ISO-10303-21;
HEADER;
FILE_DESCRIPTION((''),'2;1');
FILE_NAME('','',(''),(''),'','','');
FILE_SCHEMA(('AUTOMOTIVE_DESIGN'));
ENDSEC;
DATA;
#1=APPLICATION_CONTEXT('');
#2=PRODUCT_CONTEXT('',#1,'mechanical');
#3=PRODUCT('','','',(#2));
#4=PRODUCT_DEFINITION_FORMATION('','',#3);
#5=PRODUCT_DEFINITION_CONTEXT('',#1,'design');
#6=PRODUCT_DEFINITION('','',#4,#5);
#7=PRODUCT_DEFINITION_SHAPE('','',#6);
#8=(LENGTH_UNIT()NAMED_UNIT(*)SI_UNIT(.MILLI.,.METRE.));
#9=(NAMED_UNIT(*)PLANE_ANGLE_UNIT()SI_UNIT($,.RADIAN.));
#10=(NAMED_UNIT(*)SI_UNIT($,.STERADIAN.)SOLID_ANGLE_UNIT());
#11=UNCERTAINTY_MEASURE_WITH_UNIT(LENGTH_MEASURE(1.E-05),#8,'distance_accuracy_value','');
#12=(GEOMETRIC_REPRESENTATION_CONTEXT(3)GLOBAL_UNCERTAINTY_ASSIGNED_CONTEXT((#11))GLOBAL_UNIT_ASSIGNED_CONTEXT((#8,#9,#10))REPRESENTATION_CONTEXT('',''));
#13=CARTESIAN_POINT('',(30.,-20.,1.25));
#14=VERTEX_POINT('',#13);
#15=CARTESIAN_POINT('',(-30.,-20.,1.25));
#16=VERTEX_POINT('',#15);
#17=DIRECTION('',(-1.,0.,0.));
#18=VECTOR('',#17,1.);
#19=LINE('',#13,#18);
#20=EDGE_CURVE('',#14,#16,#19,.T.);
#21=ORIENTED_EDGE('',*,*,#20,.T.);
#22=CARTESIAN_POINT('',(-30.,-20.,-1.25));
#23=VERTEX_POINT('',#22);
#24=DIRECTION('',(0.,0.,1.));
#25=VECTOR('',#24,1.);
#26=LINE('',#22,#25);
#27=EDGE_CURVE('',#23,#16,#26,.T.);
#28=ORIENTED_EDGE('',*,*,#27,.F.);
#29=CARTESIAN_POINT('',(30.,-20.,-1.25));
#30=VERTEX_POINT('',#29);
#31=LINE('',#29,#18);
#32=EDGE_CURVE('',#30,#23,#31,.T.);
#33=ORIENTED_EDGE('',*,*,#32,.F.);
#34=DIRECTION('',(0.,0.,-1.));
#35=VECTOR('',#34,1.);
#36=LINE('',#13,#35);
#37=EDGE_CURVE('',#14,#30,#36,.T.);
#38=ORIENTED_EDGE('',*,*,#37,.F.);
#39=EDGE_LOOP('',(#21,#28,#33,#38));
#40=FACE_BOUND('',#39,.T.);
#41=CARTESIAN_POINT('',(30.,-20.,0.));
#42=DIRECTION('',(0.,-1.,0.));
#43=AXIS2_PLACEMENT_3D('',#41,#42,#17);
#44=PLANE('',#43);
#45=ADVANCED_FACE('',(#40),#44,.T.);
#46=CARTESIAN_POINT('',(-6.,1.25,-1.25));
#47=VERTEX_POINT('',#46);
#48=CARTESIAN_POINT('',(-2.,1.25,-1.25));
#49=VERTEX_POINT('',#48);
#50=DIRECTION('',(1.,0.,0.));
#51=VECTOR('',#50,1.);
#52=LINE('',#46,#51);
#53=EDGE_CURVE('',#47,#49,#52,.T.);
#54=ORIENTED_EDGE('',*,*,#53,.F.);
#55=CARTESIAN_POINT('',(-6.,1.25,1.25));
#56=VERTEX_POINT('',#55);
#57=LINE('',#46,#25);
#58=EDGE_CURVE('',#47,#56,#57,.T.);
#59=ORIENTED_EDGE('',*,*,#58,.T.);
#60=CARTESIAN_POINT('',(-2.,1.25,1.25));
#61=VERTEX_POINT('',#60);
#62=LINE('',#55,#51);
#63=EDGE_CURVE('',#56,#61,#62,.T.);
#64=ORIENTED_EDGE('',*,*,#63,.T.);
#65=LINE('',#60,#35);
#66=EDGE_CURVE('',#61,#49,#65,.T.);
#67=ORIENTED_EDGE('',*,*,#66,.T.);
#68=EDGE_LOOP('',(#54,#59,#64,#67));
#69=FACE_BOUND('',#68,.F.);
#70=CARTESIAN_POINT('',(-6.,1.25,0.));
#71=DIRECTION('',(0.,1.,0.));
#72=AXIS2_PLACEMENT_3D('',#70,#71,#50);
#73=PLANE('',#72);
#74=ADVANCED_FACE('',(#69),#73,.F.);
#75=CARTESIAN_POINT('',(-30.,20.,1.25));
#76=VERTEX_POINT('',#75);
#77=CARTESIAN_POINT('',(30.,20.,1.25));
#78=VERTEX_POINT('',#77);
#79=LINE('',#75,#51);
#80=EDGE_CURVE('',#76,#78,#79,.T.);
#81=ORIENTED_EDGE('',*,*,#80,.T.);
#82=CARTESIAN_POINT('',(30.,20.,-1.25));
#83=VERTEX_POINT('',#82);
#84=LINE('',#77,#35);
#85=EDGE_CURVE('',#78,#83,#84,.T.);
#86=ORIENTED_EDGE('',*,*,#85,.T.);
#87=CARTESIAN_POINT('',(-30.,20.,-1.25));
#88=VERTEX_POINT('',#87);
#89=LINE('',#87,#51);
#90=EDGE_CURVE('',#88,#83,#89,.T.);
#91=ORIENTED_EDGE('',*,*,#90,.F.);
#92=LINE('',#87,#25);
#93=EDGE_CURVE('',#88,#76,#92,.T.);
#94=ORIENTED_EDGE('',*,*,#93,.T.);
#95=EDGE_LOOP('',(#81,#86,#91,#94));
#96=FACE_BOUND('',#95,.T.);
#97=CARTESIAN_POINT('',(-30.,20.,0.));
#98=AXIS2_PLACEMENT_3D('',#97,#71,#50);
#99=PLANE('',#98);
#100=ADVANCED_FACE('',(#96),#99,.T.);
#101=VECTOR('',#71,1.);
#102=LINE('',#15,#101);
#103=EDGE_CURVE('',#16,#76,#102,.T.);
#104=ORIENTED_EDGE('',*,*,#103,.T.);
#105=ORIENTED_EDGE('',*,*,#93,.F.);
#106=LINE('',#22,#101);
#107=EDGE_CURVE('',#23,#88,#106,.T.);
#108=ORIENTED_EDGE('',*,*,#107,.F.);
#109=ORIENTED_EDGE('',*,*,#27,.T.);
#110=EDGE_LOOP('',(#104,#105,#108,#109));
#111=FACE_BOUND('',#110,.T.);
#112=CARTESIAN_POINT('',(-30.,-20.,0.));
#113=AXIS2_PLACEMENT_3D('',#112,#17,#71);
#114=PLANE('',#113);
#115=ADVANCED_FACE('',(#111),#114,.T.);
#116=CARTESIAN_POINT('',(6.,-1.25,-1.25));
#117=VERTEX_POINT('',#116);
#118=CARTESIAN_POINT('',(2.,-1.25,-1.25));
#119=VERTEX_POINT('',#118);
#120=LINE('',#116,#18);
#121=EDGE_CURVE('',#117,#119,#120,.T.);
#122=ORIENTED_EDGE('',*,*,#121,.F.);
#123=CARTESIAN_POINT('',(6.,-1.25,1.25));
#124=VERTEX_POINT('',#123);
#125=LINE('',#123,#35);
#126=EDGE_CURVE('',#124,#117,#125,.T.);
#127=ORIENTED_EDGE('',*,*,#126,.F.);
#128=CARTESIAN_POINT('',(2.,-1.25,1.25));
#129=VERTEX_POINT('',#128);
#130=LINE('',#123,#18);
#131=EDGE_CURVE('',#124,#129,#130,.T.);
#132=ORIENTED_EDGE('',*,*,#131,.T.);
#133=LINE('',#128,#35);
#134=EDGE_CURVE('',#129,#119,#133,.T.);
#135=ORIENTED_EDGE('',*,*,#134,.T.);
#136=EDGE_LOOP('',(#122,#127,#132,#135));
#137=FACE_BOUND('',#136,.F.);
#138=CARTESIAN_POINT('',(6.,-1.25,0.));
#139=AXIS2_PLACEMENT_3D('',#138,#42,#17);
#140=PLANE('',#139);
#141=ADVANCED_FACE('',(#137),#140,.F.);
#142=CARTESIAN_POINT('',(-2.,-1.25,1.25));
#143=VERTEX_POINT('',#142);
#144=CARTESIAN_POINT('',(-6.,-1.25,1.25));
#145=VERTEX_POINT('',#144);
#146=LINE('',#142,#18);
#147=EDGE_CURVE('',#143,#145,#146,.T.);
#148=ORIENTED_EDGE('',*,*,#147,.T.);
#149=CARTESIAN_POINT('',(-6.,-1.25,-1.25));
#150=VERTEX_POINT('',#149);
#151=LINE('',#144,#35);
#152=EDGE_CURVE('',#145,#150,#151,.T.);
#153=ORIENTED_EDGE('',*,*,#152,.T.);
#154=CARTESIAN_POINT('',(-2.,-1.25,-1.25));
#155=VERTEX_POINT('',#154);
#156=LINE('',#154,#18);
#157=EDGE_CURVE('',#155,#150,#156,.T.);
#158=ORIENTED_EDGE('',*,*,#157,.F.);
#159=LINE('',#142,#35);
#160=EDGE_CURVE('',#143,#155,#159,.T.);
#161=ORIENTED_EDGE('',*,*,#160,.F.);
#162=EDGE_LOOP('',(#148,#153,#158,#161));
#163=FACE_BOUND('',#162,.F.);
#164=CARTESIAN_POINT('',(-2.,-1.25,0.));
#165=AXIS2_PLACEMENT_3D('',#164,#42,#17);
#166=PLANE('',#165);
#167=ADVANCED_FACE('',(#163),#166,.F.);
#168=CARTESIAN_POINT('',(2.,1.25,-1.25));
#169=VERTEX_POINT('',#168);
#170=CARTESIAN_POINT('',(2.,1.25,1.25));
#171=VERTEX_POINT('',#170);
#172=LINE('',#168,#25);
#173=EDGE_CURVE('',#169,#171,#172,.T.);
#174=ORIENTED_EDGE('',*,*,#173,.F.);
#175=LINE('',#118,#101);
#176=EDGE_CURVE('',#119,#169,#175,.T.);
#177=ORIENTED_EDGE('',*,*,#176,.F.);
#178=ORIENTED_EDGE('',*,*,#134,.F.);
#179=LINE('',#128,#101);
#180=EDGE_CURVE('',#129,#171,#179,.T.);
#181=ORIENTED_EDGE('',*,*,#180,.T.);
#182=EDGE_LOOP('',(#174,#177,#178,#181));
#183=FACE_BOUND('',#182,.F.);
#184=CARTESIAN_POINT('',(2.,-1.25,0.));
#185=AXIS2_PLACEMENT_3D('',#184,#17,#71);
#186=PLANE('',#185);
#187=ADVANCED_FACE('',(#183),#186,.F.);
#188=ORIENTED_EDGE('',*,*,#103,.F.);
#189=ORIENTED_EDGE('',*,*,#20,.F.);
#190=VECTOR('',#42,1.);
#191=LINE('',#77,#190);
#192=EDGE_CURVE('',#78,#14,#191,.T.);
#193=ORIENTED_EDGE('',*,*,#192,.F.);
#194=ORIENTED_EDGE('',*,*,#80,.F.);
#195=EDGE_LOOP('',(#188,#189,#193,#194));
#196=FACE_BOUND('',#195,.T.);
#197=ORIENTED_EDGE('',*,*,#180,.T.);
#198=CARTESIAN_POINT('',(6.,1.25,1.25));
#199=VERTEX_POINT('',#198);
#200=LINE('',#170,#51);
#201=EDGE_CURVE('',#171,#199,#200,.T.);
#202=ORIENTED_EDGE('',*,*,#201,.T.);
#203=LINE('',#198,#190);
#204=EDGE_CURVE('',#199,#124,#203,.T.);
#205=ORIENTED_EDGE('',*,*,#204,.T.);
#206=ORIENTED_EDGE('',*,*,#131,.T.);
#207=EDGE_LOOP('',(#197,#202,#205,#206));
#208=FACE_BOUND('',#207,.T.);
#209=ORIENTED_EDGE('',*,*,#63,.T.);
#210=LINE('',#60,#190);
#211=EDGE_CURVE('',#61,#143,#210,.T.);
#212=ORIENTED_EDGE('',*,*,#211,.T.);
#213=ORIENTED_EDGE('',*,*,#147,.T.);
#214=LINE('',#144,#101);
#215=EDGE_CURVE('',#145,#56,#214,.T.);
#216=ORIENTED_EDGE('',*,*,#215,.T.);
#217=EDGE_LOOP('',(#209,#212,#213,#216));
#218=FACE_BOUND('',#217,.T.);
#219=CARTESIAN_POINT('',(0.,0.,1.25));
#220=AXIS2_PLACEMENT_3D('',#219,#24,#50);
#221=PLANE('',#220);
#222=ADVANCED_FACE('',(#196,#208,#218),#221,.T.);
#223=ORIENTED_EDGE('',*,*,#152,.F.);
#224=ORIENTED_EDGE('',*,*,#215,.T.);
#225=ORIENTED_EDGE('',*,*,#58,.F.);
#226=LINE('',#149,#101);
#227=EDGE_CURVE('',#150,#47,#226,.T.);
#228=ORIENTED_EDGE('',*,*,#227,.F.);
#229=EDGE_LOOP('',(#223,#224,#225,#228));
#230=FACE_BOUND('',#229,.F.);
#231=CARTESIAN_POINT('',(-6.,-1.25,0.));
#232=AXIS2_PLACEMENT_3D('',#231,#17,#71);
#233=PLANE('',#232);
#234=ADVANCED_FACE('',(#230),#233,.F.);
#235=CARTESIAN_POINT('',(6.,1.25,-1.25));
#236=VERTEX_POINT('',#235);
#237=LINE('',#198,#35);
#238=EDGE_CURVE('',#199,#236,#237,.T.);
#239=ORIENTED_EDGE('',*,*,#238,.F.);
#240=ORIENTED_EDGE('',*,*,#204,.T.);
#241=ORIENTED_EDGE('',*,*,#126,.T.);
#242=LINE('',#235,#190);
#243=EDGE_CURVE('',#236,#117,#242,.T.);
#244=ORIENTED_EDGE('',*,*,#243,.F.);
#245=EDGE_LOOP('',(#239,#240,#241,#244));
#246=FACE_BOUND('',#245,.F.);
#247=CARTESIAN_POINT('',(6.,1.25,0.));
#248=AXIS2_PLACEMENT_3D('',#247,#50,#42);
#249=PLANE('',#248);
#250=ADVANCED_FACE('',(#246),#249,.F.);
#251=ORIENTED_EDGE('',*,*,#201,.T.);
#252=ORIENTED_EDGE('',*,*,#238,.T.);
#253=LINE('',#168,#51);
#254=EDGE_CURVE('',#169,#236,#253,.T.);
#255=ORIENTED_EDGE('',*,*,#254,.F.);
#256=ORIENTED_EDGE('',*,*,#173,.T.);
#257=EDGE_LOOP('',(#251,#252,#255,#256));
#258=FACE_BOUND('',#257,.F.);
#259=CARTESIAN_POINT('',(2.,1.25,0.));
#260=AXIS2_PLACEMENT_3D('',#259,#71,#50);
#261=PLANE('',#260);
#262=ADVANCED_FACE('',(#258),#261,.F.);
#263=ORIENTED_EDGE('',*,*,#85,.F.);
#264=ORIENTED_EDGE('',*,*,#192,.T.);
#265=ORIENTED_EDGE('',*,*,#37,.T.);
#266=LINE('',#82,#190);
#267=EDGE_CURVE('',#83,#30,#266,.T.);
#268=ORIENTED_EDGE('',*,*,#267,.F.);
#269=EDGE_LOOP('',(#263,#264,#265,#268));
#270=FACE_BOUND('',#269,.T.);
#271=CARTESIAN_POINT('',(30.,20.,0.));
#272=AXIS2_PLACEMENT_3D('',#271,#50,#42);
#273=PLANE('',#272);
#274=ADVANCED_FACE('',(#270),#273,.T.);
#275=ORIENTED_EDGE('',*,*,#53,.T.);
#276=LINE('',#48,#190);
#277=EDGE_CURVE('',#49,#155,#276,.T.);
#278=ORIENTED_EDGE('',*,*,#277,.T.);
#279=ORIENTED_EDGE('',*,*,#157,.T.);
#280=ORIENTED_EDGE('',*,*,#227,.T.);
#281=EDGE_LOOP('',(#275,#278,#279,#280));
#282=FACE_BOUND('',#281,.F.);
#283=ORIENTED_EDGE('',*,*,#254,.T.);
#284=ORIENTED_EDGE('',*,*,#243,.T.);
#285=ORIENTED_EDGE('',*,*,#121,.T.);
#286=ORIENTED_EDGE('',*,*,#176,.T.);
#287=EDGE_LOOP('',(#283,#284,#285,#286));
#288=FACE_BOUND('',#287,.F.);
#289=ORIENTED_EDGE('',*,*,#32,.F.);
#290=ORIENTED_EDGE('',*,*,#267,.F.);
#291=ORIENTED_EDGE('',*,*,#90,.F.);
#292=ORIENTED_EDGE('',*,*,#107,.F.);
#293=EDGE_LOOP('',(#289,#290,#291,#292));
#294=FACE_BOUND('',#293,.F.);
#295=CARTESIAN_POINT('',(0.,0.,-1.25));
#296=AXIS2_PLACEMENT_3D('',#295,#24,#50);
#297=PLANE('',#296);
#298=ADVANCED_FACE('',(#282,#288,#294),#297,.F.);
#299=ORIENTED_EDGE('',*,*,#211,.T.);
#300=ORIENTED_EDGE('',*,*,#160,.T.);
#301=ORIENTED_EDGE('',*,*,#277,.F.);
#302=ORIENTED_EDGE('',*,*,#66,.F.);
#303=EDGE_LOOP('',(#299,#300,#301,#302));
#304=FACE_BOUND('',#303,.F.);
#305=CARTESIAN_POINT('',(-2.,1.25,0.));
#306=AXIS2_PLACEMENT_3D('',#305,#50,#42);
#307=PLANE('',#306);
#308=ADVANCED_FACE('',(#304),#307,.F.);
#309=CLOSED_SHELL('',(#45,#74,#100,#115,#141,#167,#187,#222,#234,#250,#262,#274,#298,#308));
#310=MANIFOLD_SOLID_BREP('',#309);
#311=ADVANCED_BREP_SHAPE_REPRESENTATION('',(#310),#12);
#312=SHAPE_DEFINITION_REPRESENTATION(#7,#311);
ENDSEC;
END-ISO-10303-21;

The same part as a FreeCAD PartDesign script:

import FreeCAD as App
import Part
import Sketcher

V = App.Vector

doc = App.newDocument("Part")
params = doc.addObject("Spreadsheet::Sheet", "Params")
for row, (alias, value) in enumerate([
    ("sketch1_width", "60 mm"),
    ("sketch1_width2", "4 mm"),
    ("sketch1_height", "40 mm"),
    ("sketch1_height2", "2.5 mm"),
    ("pad1_length", "2.5 mm"),
], start=1):
    params.set(f"A{row}", alias)
    params.set(f"B{row}", "=" + value)
    params.setAlias(f"B{row}", alias)

body = doc.addObject("PartDesign::Body", "Body")

sketch1 = body.newObject("Sketcher::SketchObject", "Sketch")
sketch1.AttachmentSupport = (doc.getObject("XY_Plane"), [""])
sketch1.MapMode = "FlatFace"
sketch1.addGeometry([
    Part.LineSegment(V(30, 20, 0), V(-30, 20, 0)),
    Part.LineSegment(V(-30, 20, 0), V(-30, -20, 0)),
    Part.LineSegment(V(-30, -20, 0), V(30, -20, 0)),
    Part.LineSegment(V(30, -20, 0), V(30, 20, 0)),
    Part.LineSegment(V(-6, -1.2, 0), V(-6, 1.2, 0)),
    Part.LineSegment(V(-6, 1.2, 0), V(-2, 1.2, 0)),
    Part.LineSegment(V(-2, 1.2, 0), V(-2, -1.2, 0)),
    Part.LineSegment(V(-2, -1.2, 0), V(-6, -1.2, 0)),
    Part.LineSegment(V(2, -1.2, 0), V(2, 1.2, 0)),
    Part.LineSegment(V(2, 1.2, 0), V(6, 1.2, 0)),
    Part.LineSegment(V(6, 1.2, 0), V(6, -1.2, 0)),
    Part.LineSegment(V(6, -1.2, 0), V(2, -1.2, 0)),
], False)
sketch1.addConstraint([
    Sketcher.Constraint("Coincident", 0, 2, 1, 1),
    Sketcher.Constraint("Coincident", 1, 2, 2, 1),
    Sketcher.Constraint("Coincident", 2, 2, 3, 1),
    Sketcher.Constraint("Coincident", 3, 2, 0, 1),
    Sketcher.Constraint("Coincident", 4, 2, 5, 1),
    Sketcher.Constraint("Coincident", 5, 2, 6, 1),
    Sketcher.Constraint("Coincident", 6, 2, 7, 1),
    Sketcher.Constraint("Coincident", 7, 2, 4, 1),
    Sketcher.Constraint("Coincident", 8, 2, 9, 1),
    Sketcher.Constraint("Coincident", 9, 2, 10, 1),
    Sketcher.Constraint("Coincident", 10, 2, 11, 1),
    Sketcher.Constraint("Coincident", 11, 2, 8, 1),
    Sketcher.Constraint("Horizontal", 0),
    Sketcher.Constraint("Vertical", 1),
    Sketcher.Constraint("Horizontal", 2),
    Sketcher.Constraint("Vertical", 3),
    Sketcher.Constraint("Vertical", 4),
    Sketcher.Constraint("Horizontal", 5),
    Sketcher.Constraint("Vertical", 6),
    Sketcher.Constraint("Horizontal", 7),
    Sketcher.Constraint("Vertical", 8),
    Sketcher.Constraint("Horizontal", 9),
    Sketcher.Constraint("Vertical", 10),
    Sketcher.Constraint("Horizontal", 11),
    Sketcher.Constraint("Symmetric", 0, 2, 2, 2, -1, 1),
    Sketcher.Constraint("Symmetric", 6, 2, 8, 2, -1, 1),
    Sketcher.Constraint("Symmetric", 4, 2, 10, 2, -1, 1),
    Sketcher.Constraint("Horizontal", 5, 2, 8, 2),
    Sketcher.Constraint("DistanceX", 0, 2, 0, 1, 60.0),
    Sketcher.Constraint("DistanceX", 5, 1, 5, 2, 4.0),
    Sketcher.Constraint("DistanceY", 1, 2, 1, 1, 40.0),
    Sketcher.Constraint("DistanceY", 4, 1, 4, 2, 2.5),
    Sketcher.Constraint("DistanceX", 5, 2, 8, 2, 4.0),
])
sketch1.setExpression("Constraints[28]", "Params.sketch1_width")
sketch1.setExpression("Constraints[29]", "Params.sketch1_width2")
sketch1.setExpression("Constraints[30]", "Params.sketch1_height")
sketch1.setExpression("Constraints[31]", "Params.sketch1_height2")
pad1 = body.newObject("PartDesign::Pad", "Pad")
pad1.Profile = sketch1
pad1.setExpression("Length", "Params.pad1_length")
pad1.Midplane = True

doc.recompute()
